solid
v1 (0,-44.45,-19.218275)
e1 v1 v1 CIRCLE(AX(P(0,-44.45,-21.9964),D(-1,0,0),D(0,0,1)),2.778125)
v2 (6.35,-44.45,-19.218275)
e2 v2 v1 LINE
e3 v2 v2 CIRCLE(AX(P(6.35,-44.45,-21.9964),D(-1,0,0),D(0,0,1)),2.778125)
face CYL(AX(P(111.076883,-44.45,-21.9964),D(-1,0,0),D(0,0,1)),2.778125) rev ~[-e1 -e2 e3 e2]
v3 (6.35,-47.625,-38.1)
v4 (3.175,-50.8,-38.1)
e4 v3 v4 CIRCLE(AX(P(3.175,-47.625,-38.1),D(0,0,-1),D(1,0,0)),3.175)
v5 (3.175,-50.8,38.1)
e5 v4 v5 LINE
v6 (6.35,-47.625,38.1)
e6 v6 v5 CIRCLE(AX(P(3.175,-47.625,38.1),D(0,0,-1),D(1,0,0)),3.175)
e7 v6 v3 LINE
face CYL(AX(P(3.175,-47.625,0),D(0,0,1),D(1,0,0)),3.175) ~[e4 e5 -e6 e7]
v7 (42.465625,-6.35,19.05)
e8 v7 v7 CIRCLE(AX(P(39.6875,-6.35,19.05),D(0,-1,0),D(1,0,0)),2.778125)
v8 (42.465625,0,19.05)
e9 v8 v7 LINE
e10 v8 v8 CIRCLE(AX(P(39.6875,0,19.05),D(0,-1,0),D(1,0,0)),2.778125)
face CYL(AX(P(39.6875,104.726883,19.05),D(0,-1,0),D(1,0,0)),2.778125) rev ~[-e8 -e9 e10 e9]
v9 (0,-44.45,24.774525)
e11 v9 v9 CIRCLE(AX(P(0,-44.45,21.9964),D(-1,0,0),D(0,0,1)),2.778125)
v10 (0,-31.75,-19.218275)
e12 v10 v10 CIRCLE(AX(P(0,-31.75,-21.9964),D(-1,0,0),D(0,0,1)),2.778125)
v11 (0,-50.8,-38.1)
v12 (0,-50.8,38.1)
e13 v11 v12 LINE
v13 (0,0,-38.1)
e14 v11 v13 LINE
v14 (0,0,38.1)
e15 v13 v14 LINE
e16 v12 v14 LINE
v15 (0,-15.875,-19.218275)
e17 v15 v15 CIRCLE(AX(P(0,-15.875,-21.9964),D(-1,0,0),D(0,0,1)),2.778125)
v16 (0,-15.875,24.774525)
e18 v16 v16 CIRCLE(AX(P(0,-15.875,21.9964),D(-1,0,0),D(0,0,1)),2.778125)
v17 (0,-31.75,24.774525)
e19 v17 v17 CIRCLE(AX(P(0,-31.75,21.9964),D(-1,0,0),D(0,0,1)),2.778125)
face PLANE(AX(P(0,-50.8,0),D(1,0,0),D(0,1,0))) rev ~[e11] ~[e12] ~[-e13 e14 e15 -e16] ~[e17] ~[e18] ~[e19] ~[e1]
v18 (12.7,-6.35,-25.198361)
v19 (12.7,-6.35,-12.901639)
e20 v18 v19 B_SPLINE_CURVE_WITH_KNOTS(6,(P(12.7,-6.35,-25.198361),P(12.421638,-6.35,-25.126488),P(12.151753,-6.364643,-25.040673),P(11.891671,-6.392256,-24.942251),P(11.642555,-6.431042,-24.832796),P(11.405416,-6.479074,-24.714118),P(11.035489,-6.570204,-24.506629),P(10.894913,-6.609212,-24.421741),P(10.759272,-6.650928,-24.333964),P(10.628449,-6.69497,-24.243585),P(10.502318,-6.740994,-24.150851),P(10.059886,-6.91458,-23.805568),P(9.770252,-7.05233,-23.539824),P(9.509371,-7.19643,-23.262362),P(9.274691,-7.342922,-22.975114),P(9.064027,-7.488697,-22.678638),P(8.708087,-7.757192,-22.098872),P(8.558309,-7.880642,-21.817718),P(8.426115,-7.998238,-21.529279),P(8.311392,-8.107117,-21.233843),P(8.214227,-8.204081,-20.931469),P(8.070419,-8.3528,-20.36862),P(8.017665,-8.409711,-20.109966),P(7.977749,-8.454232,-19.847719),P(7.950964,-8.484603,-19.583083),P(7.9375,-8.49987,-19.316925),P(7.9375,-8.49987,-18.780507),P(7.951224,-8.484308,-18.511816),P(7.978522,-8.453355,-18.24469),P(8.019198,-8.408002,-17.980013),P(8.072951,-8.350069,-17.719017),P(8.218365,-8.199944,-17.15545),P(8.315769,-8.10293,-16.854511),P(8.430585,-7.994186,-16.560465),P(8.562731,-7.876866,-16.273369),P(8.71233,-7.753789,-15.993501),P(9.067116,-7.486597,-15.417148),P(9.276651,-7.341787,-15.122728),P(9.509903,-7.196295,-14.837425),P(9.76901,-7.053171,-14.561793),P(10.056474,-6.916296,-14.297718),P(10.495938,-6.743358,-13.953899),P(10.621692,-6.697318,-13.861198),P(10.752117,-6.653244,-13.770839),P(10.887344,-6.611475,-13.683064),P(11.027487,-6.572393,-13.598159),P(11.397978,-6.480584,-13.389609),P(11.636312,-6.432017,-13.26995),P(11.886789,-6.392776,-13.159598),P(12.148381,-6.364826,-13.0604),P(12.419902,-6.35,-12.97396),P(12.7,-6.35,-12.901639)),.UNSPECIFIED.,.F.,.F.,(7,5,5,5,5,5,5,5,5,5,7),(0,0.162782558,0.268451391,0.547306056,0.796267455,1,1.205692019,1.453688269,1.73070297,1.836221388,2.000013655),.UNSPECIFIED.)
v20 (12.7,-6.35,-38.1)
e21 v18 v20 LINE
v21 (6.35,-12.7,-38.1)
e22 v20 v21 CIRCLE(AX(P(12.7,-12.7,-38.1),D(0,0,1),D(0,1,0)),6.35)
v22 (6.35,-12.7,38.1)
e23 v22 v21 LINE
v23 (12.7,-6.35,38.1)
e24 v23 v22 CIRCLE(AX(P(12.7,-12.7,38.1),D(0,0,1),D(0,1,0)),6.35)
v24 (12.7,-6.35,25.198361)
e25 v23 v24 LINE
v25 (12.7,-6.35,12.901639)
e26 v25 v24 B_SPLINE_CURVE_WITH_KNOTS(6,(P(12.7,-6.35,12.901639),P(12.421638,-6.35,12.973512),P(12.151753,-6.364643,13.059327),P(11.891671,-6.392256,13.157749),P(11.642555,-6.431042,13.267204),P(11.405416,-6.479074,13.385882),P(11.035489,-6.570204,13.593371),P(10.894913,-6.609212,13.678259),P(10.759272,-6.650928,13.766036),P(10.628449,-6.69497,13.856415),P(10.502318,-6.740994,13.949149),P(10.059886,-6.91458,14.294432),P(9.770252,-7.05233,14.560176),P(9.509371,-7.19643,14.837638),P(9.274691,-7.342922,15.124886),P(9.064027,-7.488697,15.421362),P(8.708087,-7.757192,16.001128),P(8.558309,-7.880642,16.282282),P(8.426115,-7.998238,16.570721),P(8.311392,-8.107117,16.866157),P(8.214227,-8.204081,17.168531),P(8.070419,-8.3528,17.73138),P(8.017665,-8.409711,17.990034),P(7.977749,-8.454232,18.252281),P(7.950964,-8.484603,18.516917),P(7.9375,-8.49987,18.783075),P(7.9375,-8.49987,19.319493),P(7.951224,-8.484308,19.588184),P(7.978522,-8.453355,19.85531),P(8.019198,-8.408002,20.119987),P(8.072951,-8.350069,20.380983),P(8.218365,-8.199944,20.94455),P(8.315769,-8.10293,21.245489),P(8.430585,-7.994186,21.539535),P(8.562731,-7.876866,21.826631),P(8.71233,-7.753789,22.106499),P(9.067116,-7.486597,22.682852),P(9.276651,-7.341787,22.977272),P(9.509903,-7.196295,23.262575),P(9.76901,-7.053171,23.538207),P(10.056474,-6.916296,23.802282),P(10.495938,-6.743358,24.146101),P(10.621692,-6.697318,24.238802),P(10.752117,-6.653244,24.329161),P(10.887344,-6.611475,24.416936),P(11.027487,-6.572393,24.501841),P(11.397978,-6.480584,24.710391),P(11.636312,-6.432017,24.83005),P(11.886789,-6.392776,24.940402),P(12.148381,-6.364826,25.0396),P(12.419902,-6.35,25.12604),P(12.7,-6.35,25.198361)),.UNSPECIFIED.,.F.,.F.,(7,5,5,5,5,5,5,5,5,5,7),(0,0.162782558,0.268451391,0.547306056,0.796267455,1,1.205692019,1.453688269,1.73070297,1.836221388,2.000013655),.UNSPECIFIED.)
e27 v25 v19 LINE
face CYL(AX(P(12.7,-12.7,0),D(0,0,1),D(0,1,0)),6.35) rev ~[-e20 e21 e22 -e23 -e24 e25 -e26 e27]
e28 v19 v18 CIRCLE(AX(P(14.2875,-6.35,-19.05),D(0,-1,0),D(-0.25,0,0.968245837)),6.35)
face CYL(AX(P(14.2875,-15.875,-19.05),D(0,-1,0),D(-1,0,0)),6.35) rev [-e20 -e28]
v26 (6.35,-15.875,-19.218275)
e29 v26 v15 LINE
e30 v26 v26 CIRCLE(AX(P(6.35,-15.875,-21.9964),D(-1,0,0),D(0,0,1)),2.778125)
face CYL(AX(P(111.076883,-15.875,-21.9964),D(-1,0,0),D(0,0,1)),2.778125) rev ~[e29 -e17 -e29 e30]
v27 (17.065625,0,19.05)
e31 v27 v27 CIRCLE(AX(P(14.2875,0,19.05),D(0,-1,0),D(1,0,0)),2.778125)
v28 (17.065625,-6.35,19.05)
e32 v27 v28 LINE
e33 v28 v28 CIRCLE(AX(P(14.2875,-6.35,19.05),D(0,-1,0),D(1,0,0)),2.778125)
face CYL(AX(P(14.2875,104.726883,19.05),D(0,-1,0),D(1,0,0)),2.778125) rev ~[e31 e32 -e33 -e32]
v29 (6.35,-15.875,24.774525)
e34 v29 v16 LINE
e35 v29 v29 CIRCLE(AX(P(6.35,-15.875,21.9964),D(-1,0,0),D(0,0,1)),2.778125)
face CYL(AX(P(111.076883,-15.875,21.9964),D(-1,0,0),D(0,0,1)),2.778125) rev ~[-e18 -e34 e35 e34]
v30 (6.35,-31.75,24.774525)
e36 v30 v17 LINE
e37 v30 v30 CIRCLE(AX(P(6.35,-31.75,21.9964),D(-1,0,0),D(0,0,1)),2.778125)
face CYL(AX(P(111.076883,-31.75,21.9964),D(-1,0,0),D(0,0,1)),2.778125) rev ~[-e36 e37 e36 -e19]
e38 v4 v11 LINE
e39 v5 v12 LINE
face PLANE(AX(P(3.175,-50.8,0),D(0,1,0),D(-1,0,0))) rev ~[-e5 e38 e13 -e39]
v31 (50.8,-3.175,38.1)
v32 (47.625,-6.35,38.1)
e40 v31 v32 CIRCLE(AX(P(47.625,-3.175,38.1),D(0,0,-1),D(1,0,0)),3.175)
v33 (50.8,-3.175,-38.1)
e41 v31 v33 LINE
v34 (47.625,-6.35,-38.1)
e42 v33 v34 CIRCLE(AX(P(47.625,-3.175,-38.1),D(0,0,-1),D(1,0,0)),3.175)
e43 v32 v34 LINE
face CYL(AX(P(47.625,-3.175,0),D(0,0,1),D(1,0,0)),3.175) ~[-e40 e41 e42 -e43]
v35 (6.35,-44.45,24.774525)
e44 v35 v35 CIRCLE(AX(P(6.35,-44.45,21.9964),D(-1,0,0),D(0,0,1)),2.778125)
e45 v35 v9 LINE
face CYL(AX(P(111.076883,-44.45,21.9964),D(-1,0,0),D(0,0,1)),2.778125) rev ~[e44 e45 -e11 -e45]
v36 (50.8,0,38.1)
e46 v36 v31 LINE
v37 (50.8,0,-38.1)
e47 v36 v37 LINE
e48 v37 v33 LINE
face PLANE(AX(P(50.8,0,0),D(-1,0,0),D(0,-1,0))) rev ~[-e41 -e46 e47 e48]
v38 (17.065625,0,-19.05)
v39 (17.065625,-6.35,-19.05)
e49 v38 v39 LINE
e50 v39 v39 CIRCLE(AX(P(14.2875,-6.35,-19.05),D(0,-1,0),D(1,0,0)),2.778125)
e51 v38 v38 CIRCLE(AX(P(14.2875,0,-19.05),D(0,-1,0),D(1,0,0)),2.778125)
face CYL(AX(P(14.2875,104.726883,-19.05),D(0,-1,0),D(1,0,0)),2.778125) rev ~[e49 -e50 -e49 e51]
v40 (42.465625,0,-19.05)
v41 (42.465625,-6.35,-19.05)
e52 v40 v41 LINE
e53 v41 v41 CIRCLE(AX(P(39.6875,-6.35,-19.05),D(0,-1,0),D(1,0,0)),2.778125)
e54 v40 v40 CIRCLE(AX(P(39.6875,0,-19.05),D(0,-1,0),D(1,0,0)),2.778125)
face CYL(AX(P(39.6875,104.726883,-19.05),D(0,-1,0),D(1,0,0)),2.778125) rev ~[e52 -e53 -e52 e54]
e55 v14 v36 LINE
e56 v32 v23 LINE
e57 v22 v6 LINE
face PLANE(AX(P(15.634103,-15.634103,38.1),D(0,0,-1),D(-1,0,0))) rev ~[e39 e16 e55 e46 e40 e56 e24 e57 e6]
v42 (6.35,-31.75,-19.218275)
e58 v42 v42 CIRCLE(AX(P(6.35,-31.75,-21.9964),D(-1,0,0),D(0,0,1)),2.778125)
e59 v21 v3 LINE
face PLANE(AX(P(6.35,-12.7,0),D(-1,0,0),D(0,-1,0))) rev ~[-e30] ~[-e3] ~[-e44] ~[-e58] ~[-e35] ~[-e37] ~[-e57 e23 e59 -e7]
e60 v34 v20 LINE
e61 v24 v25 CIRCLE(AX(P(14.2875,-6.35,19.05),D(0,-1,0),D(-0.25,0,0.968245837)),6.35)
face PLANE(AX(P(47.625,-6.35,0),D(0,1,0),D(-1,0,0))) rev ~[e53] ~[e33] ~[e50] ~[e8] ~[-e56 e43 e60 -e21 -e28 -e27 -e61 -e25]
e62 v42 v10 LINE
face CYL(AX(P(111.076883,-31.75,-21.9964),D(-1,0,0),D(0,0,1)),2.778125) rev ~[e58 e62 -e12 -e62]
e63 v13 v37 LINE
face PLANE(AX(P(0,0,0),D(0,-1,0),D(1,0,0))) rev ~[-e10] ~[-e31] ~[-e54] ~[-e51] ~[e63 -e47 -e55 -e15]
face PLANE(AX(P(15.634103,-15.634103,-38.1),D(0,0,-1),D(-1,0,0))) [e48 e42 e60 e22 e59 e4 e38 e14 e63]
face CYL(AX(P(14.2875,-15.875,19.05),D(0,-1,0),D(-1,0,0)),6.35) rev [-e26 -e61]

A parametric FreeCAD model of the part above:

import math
import FreeCAD as App
import Part
import Sketcher

V = App.Vector
Q = App.Units.Quantity

doc = App.newDocument("Part")
body = doc.addObject("PartDesign::Body", "Body")

# Sketch on XY plane
sketch1 = body.newObject("Sketcher::SketchObject", "Sketch")
sketch1.AttachmentSupport = (doc.getObject("XY_Plane"), [""])
sketch1.MapMode = "FlatFace"
sketch1.addGeometry([
    Part.LineSegment(V(50.8, 0, 0), V(0, 0, 0)),  # 0
    Part.LineSegment(V(0, 0, 0), V(0, -50.8, 0)),  # 1
    Part.LineSegment(V(0, -50.8, 0), V(3.2, -50.8, 0)),  # 2
    Part.ArcOfCircle(Part.Circle(V(3.2, -47.6, 0), V(0, 0, 1), 3.2), math.radians(-90), math.radians(0)),  # 3
    Part.LineSegment(V(6.3, -47.6, 0), V(6.3, -12.7, 0)),  # 4
    Part.ArcOfCircle(Part.Circle(V(12.7, -12.7, 0), V(0, 0, 1), 6.3), math.radians(90), math.radians(180)),  # 5
    Part.LineSegment(V(12.7, -6.3, 0), V(47.6, -6.3, 0)),  # 6
    Part.ArcOfCircle(Part.Circle(V(47.6, -3.2, 0), V(0, 0, 1), 3.2), math.radians(-90), math.radians(0)),  # 7
    Part.LineSegment(V(50.8, -3.2, 0), V(50.8, 0, 0)),  # 8
], False)
sketch1.addConstraint([
    Sketcher.Constraint("Coincident", 0, 2, 1, 1),
    Sketcher.Constraint("Coincident", 1, 2, 2, 1),
    Sketcher.Constraint("Tangent", 2, 2, 3, 1),
    Sketcher.Constraint("Tangent", 3, 2, 4, 1),
    Sketcher.Constraint("Tangent", 4, 2, 5, 2),
    Sketcher.Constraint("Tangent", 5, 1, 6, 1),
    Sketcher.Constraint("Tangent", 6, 2, 7, 1),
    Sketcher.Constraint("Tangent", 7, 2, 8, 1),
    Sketcher.Constraint("Coincident", 8, 2, 0, 1),
    Sketcher.Constraint("Horizontal", 0),
    Sketcher.Constraint("Vertical", 1),
    Sketcher.Constraint("Horizontal", 2),
    Sketcher.Constraint("Vertical", 4),
    Sketcher.Constraint("Horizontal", 6),
    Sketcher.Constraint("Vertical", 8),
    Sketcher.Constraint("Coincident", 0, 2, -1, 1),
    Sketcher.Constraint("Equal", 3, 7),
    Sketcher.Constraint("Equal", 0, 1),
    Sketcher.Constraint("Equal", 6, 4),
    Sketcher.Constraint("DistanceX", 0, 2, 0, 1, Q("2 in")),
    Sketcher.Constraint("Radius", 5, Q("0.25 in")),
    Sketcher.Constraint("Radius", 3, Q("0.125 in")),
    Sketcher.Constraint("DistanceX", -1, 1, 5, 3, Q("0.5 in")),
])
pad1 = body.newObject("PartDesign::Pad", "Pad")
pad1.Profile = sketch1
pad1.Length = Q("3 in")
pad1.Midplane = True

# Sketch on XZ plane
sketch2 = body.newObject("Sketcher::SketchObject", "Sketch001")
sketch2.AttachmentSupport = (doc.getObject("XZ_Plane"), [""])
sketch2.MapMode = "FlatFace"
sketch2.addGeometry([
    Part.Circle(V(39.7, 19.1, 0), V(0, 0, 1), 2.8),
    Part.Circle(V(39.7, -19.1, 0), V(0, 0, 1), 2.8),
    Part.Circle(V(14.3, -19.1, 0), V(0, 0, 1), 2.8),
    Part.Circle(V(14.3, 19.1, 0), V(0, 0, 1), 2.8),
], False)
sketch2.addConstraint([
    Sketcher.Constraint("Equal", 0, 1),
    Sketcher.Constraint("Equal", 1, 2),
    Sketcher.Constraint("Equal", 2, 3),
    Sketcher.Constraint("Symmetric", 0, 3, 1, 3, -1),
    Sketcher.Constraint("Symmetric", 2, 3, 3, 3, -1),
    Sketcher.Constraint("Horizontal", 1, 3, 2, 3),
    Sketcher.Constraint("Diameter", 0, Q("0.21875 in")),
    Sketcher.Constraint("DistanceX", 2, 3, 1, 3, Q("1 in")),
    Sketcher.Constraint("DistanceY", 1, 3, 0, 3, Q("1.5 in")),
    Sketcher.Constraint("DistanceX", -1, 1, 0, 3, Q("1.5625 in")),
])
doc.recompute()
hole = body.newObject("PartDesign::Hole", "Hole")
hole.Profile = sketch2
hole.ThreadType = "None"
hole.Diameter = Q("0.21875 in")
hole.DepthType = "ThroughAll"
hole.Reversed = True

# Sketch on YZ plane
sketch3 = body.newObject("Sketcher::SketchObject", "Sketch002")
sketch3.AttachmentSupport = (doc.getObject("YZ_Plane"), [""])
sketch3.MapMode = "FlatFace"
sketch3.AttachmentOffset = App.Placement(V(0, 0, 0.25 * 25.4), App.Rotation())
sketch3.addGeometry([
    Part.Circle(V(-15.9, 22, 0), V(0, 0, 1), 2.8),  # 0
    Part.Circle(V(-15.9, -22, 0), V(0, 0, 1), 2.8),  # 1
    Part.Circle(V(-44.5, -22, 0), V(0, 0, 1), 2.8),  # 2
    Part.Circle(V(-44.5, 22, 0), V(0, 0, 1), 2.8),  # 3
    Part.Circle(V(-31.8, 22, 0), V(0, 0, 1), 2.8),  # 4
    Part.Circle(V(-31.8, -22, 0), V(0, 0, 1), 2.8),  # 5
], False)
sketch3.addConstraint([
    Sketcher.Constraint("Equal", 0, 1),
    Sketcher.Constraint("Equal", 1, 2),
    Sketcher.Constraint("Equal", 2, 3),
    Sketcher.Constraint("Equal", 3, 4),
    Sketcher.Constraint("Equal", 4, 5),
    Sketcher.Constraint("Symmetric", 0, 3, 1, 3, -1),
    Sketcher.Constraint("Symmetric", 2, 3, 3, 3, -1),
    Sketcher.Constraint("Symmetric", 4, 3, 5, 3, -1),
    Sketcher.Constraint("Horizontal", 1, 3, 2, 3),
    Sketcher.Constraint("Horizontal", 3, 3, 4, 3),
    Sketcher.Constraint("Diameter", 0, Q("0.21875 in")),
    Sketcher.Constraint("DistanceX", 3, 3, 4, 3, Q("0.5 in")),
    Sketcher.Constraint("DistanceX", 2, 3, -1, 1, Q("1.75 in")),
    Sketcher.Constraint("DistanceX", 0, 3, -1, 1, Q("0.625 in")),
    Sketcher.Constraint("DistanceY", -1, 1, 0, 3, Q("0.866 in")),
])
doc.recompute()
hole2 = body.newObject("PartDesign::Hole", "Hole001")
hole2.Profile = sketch3
hole2.ThreadType = "None"
hole2.Diameter = Q("0.21875 in")
hole2.DepthType = "ThroughAll"

# Sketch on XZ plane
sketch4 = body.newObject("Sketcher::SketchObject", "Sketch003")
sketch4.AttachmentSupport = (doc.getObject("XZ_Plane"), [""])
sketch4.MapMode = "FlatFace"
sketch4.AttachmentOffset = App.Placement(V(0, 0, 0.625 * 25.4), App.Rotation())
sketch4.addGeometry([
    Part.Circle(V(14, 19, 0), V(0, 0, 1), 6),
    Part.Circle(V(14, -19, 0), V(0, 0, 1), 6),
], False)
sketch4.addConstraint([
    Sketcher.Constraint("Equal", 0, 1),
    Sketcher.Constraint("Symmetric", 0, 3, 1, 3, -1),
    Sketcher.Constraint("Diameter", 0, Q("0.5 in")),
    Sketcher.Constraint("DistanceY", 1, 3, 0, 3, Q("1.5 in")),
    Sketcher.Constraint("DistanceX", -1, 1, 0, 3, Q("0.5625 in")),
])
pocket1 = body.newObject("PartDesign::Pocket", "Pocket")
pocket1.Profile = sketch4
pocket1.Length = Q("0.375 in")

doc.recompute()
